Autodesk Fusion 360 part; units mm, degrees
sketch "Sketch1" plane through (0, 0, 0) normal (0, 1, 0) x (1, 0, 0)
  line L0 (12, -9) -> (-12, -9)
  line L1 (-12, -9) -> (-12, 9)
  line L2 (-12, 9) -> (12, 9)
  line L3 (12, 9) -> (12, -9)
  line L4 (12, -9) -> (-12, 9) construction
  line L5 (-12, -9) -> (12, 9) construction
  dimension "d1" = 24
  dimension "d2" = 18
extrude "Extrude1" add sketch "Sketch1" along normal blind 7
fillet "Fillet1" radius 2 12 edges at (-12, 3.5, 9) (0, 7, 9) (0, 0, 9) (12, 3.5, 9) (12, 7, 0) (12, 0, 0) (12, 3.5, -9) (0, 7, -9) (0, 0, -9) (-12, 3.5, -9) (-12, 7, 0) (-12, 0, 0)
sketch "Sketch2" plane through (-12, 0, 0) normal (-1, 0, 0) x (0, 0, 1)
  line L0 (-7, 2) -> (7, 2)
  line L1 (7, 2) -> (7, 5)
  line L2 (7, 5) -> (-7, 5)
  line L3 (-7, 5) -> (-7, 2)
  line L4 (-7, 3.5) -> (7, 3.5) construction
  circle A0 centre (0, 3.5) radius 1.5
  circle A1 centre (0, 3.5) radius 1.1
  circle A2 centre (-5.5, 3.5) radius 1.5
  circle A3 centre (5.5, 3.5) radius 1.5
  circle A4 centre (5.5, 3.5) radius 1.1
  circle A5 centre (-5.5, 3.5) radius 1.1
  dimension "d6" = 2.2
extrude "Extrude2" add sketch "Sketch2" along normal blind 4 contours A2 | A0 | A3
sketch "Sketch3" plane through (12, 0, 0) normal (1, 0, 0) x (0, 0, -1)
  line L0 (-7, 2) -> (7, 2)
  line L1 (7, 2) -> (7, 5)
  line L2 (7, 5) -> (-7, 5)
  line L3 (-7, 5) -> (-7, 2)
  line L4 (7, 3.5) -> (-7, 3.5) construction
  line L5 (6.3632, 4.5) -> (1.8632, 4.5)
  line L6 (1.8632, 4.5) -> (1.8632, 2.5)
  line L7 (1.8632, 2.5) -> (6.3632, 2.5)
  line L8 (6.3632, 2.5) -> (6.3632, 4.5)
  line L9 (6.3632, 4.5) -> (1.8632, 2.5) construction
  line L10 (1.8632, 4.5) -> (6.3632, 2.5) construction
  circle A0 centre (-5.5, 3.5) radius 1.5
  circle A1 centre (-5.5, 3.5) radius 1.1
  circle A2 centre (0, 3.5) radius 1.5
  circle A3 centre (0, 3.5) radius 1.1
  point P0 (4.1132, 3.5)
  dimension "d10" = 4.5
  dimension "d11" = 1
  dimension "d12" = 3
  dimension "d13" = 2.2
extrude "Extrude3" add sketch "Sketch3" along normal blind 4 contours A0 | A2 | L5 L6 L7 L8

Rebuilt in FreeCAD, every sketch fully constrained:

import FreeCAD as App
import Part
import Sketcher


def add_polygon(sketch, points):
    """Adds a closed chain of lines whose ends are joined by coincident constraints."""
    first, n = sketch.GeometryCount, len(points)
    for a, b in zip(points, points[1:] + points[:1]):
        sketch.addGeometry(Part.LineSegment(App.Vector(*a, 0), App.Vector(*b, 0)), False)
    for i in range(n):
        sketch.addConstraint(Sketcher.Constraint("Coincident", first + i, 2, first + (i + 1) % n, 1))

doc = App.newDocument("Part")
body = doc.addObject("PartDesign::Body", "Body")

# Sketch on XZ plane
sketch1 = body.newObject("Sketcher::SketchObject", "Sketch")
sketch1.AttachmentSupport = (doc.getObject("XZ_Plane"), [""])
sketch1.MapMode = "FlatFace"
add_polygon(sketch1, [(-12, 9), (12, 9), (12, -9), (-12, -9)])  # lines 0-3
sketch1.addConstraint(Sketcher.Constraint("Horizontal", 0))
sketch1.addConstraint(Sketcher.Constraint("Vertical", 1))
sketch1.addConstraint(Sketcher.Constraint("Horizontal", 2))
sketch1.addConstraint(Sketcher.Constraint("Vertical", 3))
sketch1.addConstraint(Sketcher.Constraint("Symmetric", 0, 2, 2, 2, -1, 1))
sketch1.addConstraint(Sketcher.Constraint("DistanceX", 0, 1, 0, 2, 24.0))
sketch1.addConstraint(Sketcher.Constraint("DistanceY", 1, 2, 1, 1, 18.0))
pad1 = body.newObject("PartDesign::Pad", "Pad")
pad1.Profile = sketch1
pad1.Length = 7
pad1.Reversed = True
doc.recompute()

fillet = body.newObject("PartDesign::Fillet", "Fillet")
fillet.Base = (pad1, ["Edge1"])
fillet.UseAllEdges = True
fillet.Radius = 2

# Sketch on YZ plane
sketch2 = body.newObject("Sketcher::SketchObject", "Sketch001")
sketch2.AttachmentSupport = (doc.getObject("YZ_Plane"), [""])
sketch2.MapMode = "FlatFace"
sketch2.AttachmentOffset = App.Placement(App.Vector(0, 0, -12), App.Rotation())
sketch2.addGeometry(Part.Circle(App.Vector(3.5, -5.5, 0), App.Vector(0, 0, 1), 1.5), False)
sketch2.addGeometry(Part.Circle(App.Vector(3.5, -5.5, 0), App.Vector(0, 0, 1), 1.1), False)
sketch2.addGeometry(Part.Circle(App.Vector(3.5, 0, 0), App.Vector(0, 0, 1), 1.5), False)
sketch2.addGeometry(Part.Circle(App.Vector(3.5, 0, 0), App.Vector(0, 0, 1), 1.1), False)
sketch2.addGeometry(Part.Circle(App.Vector(3.5, 5.5, 0), App.Vector(0, 0, 1), 1.5), False)
sketch2.addGeometry(Part.Circle(App.Vector(3.5, 5.5, 0), App.Vector(0, 0, 1), 1.1), False)
sketch2.addConstraint(Sketcher.Constraint("Coincident", 1, 3, 0, 3))
sketch2.addConstraint(Sketcher.Constraint("Coincident", 3, 3, 2, 3))
sketch2.addConstraint(Sketcher.Constraint("Coincident", 5, 3, 4, 3))
sketch2.addConstraint(Sketcher.Constraint("Equal", 0, 2))
sketch2.addConstraint(Sketcher.Constraint("Equal", 1, 3))
sketch2.addConstraint(Sketcher.Constraint("Equal", 2, 4))
sketch2.addConstraint(Sketcher.Constraint("Equal", 3, 5))
sketch2.addConstraint(Sketcher.Constraint("Symmetric", 0, 3, 4, 3, -1))
sketch2.addConstraint(Sketcher.Constraint("PointOnObject", 2, 3, -1))
sketch2.addConstraint(Sketcher.Constraint("Vertical", 1, 3, 2, 3))
sketch2.addConstraint(Sketcher.Constraint("Diameter", 1, 2.2))
sketch2.addConstraint(Sketcher.Constraint("Diameter", 0, 3.0))
sketch2.addConstraint(Sketcher.Constraint("DistanceY", 0, 3, 4, 3, 11.0))
sketch2.addConstraint(Sketcher.Constraint("DistanceX", -1, 1, 0, 3, 3.5))
pad2 = body.newObject("PartDesign::Pad", "Pad001")
pad2.Profile = sketch2
pad2.Length = 4
pad2.Reversed = True

# Sketch on YZ plane
sketch3 = body.newObject("Sketcher::SketchObject", "Sketch002")
sketch3.AttachmentSupport = (doc.getObject("YZ_Plane"), [""])
sketch3.MapMode = "FlatFace"
sketch3.AttachmentOffset = App.Placement(App.Vector(0, 0, 12), App.Rotation())
sketch3.addGeometry(Part.Circle(App.Vector(3.5, 5.5, 0), App.Vector(0, 0, 1), 1.5), False)  # 0
sketch3.addGeometry(Part.Circle(App.Vector(3.5, 5.5, 0), App.Vector(0, 0, 1), 1.1), False)  # 1
sketch3.addGeometry(Part.Circle(App.Vector(3.5, 0, 0), App.Vector(0, 0, 1), 1.5), False)  # 2
sketch3.addGeometry(Part.Circle(App.Vector(3.5, 0, 0), App.Vector(0, 0, 1), 1.1), False)  # 3
add_polygon(sketch3, [(2.5, -6.4), (4.5, -6.4), (4.5, -1.9), (2.5, -1.9)])  # lines 4-7
sketch3.addConstraint(Sketcher.Constraint("Horizontal", 4))
sketch3.addConstraint(Sketcher.Constraint("Vertical", 5))
sketch3.addConstraint(Sketcher.Constraint("Horizontal", 6))
sketch3.addConstraint(Sketcher.Constraint("Vertical", 7))
sketch3.addConstraint(Sketcher.Constraint("Coincident", 1, 3, 0, 3))
sketch3.addConstraint(Sketcher.Constraint("Coincident", 3, 3, 2, 3))
sketch3.addConstraint(Sketcher.Constraint("Equal", 0, 2))
sketch3.addConstraint(Sketcher.Constraint("Equal", 1, 3))
sketch3.addConstraint(Sketcher.Constraint("PointOnObject", 2, 3, -1))
sketch3.addConstraint(Sketcher.Constraint("Vertical", 1, 3, 2, 3))
sketch3.addConstraint(Sketcher.Constraint("Diameter", 0, 3.0))
sketch3.addConstraint(Sketcher.Constraint("Diameter", 1, 2.2))
sketch3.addConstraint(Sketcher.Constraint("DistanceY", 5, 1, 5, 2, 4.5))
sketch3.addConstraint(Sketcher.Constraint("DistanceX", 2, 3, 4, 2, 1.0))
sketch3.addConstraint(Sketcher.Constraint("DistanceX", 6, 2, 2, 3, 1.0))
sketch3.addConstraint(Sketcher.Constraint("DistanceX", -1, 1, 4, 2, 4.5))
sketch3.addConstraint(Sketcher.Constraint("DistanceY", -1, 1, 0, 3, 5.5))
sketch3.addConstraint(Sketcher.Constraint("DistanceY", 4, 2, -1, 1, 6.3632))
pad3 = body.newObject("PartDesign::Pad", "Pad002")
pad3.Profile = sketch3
pad3.Length = 4

doc.recompute()
